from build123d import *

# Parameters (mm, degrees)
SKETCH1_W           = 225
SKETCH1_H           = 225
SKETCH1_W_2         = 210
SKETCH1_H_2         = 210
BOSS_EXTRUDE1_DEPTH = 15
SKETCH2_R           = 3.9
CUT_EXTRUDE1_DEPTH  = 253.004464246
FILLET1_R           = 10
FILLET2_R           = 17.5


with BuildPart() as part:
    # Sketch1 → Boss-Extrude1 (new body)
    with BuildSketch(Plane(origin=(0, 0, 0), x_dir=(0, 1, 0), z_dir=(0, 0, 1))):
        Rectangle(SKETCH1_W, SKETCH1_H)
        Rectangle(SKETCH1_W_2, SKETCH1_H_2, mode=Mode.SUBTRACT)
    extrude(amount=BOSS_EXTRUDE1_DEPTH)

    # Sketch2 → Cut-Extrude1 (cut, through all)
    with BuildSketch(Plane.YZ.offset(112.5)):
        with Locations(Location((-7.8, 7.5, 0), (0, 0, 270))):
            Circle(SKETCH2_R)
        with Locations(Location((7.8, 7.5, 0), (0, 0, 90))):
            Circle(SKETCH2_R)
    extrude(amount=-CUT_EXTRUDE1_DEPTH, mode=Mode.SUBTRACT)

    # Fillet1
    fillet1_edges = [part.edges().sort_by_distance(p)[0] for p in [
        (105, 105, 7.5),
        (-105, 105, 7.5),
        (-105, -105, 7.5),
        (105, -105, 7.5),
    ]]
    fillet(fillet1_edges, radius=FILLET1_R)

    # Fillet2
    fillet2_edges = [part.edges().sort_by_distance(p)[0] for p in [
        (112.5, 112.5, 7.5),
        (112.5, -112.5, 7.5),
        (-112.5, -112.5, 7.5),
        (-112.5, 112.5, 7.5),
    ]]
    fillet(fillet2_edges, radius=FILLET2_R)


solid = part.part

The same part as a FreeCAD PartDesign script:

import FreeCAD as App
import Part
import Sketcher

V = App.Vector
Q = App.Units.Quantity


def edges_at(feature, points):
    """Names of the edges that pass closest to the given points."""
    edges = feature.Shape.Edges
    near = lambda p: min(range(len(edges)), key=lambda i: edges[i].distToShape(Part.Vertex(*p))[0])
    return sorted({f"Edge{near(p) + 1}" for p in points})


def add_polygon(sketch, points):
    """Adds a closed chain of lines whose ends are joined by coincident constraints."""
    first, n = sketch.GeometryCount, len(points)
    for a, b in zip(points, points[1:] + points[:1]):
        sketch.addGeometry(Part.LineSegment(App.Vector(*a, 0), App.Vector(*b, 0)), False)
    for i in range(n):
        sketch.addConstraint(Sketcher.Constraint("Coincident", first + i, 2, first + (i + 1) % n, 1))

doc = App.newDocument("Part")
body = doc.addObject("PartDesign::Body", "Body")

# Sketch on XY plane
sketch1 = doc.addObject("Sketcher::SketchObject", "Sketch")
body.addObject(sketch1)
sketch1.AttachmentSupport = (doc.XY_Plane, [""])
sketch1.MapMode = "FlatFace"
add_polygon(sketch1, [(-112.5, -112.5), (112.5, -112.5), (112.5, 112.5), (-112.5, 112.5)])  # lines 0-3
add_polygon(sketch1, [(105, 105), (105, -105), (-105, -105), (-105, 105)])  # lines 4-7
sketch1.addConstraint([
    Sketcher.Constraint("Horizontal", 0),
    Sketcher.Constraint("Vertical", 1),
    Sketcher.Constraint("Horizontal", 2),
    Sketcher.Constraint("Vertical", 3),
    Sketcher.Constraint("Vertical", 4),
    Sketcher.Constraint("Horizontal", 5),
    Sketcher.Constraint("Vertical", 6),
    Sketcher.Constraint("Horizontal", 7),
    Sketcher.Constraint("Symmetric", 0, 2, 2, 2, -1, 1),
    Sketcher.Constraint("Symmetric", 4, 2, 6, 2, -1, 1),
    Sketcher.Constraint("Equal", 2, 1),
    Sketcher.Constraint("Equal", 7, 4),
    Sketcher.Constraint("DistanceX", 0, 1, 0, 2, Q("225 mm")),
    Sketcher.Constraint("DistanceX", 5, 2, 5, 1, Q("210 mm")),
])
pad1 = doc.addObject("PartDesign::Pad", "Pad")
body.addObject(pad1)
pad1.Profile = sketch1
pad1.Length = 15

# Sketch on YZ plane
sketch2 = doc.addObject("Sketcher::SketchObject", "Sketch001")
body.addObject(sketch2)
sketch2.AttachmentSupport = (doc.YZ_Plane, [""])
sketch2.MapMode = "FlatFace"
sketch2.AttachmentOffset = App.Placement(V(0, 0, 112.5), App.Rotation())
sketch2.addGeometry([
    Part.Circle(V(-7.8, 7.5, 0), V(0, 0, 1), 3.9),
    Part.Circle(V(7.8, 7.5, 0), V(0, 0, 1), 3.9),
], False)
sketch2.addConstraint([
    Sketcher.Constraint("Equal", 0, 1),
    Sketcher.Constraint("Symmetric", 0, 3, 1, 3, -2),
    Sketcher.Constraint("Diameter", 0, Q("7.8 mm")),
    Sketcher.Constraint("DistanceX", 0, 3, -1, 1, Q("7.8 mm")),
    Sketcher.Constraint("DistanceY", -1, 1, 0, 3, Q("7.5 mm")),
])
pocket1 = doc.addObject("PartDesign::Pocket", "Pocket")
body.addObject(pocket1)
pocket1.Profile = sketch2
pocket1.Type = "ThroughAll"
doc.recompute()

fillet = doc.addObject("PartDesign::Fillet", "Fillet")
body.addObject(fillet)
fillet.Base = (pocket1, edges_at(pocket1, [
    (105, 105, 7.5),
    (-105, 105, 7.5),
    (-105, -105, 7.5),
    (105, -105, 7.5),
]))
fillet.Radius = 10
doc.recompute()

fillet2 = doc.addObject("PartDesign::Fillet", "Fillet001")
body.addObject(fillet2)
fillet2.Base = (fillet, edges_at(fillet, [
    (112.5, 112.5, 7.5),
    (112.5, -112.5, 7.5),
    (-112.5, -112.5, 7.5),
    (-112.5, 112.5, 7.5),
]))
fillet2.Radius = 17.5

doc.recompute()
